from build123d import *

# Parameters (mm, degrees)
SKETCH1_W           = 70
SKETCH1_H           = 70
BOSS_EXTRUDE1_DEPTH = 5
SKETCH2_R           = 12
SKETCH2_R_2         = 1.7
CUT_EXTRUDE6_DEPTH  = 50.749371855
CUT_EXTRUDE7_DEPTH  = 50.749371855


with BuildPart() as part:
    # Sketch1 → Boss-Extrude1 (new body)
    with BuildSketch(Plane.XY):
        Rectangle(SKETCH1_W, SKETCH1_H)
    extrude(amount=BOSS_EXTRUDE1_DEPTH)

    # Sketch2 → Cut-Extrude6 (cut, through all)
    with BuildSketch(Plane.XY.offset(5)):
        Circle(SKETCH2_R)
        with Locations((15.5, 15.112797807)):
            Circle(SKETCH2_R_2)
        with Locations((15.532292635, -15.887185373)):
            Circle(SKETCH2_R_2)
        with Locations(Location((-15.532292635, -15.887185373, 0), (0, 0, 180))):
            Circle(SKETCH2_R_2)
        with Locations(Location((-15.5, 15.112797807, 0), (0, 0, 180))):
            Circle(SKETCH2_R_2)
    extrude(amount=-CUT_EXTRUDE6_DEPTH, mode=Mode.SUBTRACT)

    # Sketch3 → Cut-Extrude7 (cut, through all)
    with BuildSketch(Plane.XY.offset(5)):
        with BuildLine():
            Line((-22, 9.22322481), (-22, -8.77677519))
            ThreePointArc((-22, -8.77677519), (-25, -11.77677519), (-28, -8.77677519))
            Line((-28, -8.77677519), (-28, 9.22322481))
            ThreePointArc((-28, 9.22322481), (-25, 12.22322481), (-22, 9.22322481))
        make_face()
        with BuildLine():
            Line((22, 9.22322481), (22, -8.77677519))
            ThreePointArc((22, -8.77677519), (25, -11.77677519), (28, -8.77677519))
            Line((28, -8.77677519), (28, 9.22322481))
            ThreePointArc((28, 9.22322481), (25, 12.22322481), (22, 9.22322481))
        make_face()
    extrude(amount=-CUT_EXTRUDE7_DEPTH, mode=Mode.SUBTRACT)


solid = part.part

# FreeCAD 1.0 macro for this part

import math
import FreeCAD as App
import Part
import Sketcher

V = App.Vector


def add_polygon(sketch, points):
    """Adds a closed chain of lines whose ends are joined by coincident constraints."""
    first, n = sketch.GeometryCount, len(points)
    for a, b in zip(points, points[1:] + points[:1]):
        sketch.addGeometry(Part.LineSegment(App.Vector(*a, 0), App.Vector(*b, 0)), False)
    for i in range(n):
        sketch.addConstraint(Sketcher.Constraint("Coincident", first + i, 2, first + (i + 1) % n, 1))

doc = App.newDocument("Part")
body = doc.addObject("PartDesign::Body", "Body")

# Sketch on XY plane
sketch1 = doc.addObject("Sketcher::SketchObject", "Sketch")
body.addObject(sketch1)
sketch1.AttachmentSupport = (doc.XY_Plane, [""])
sketch1.MapMode = "FlatFace"
add_polygon(sketch1, [(-35, 35), (-35, -35), (35, -35), (35, 35)])  # lines 0-3
sketch1.addConstraint(Sketcher.Constraint("Vertical", 0))
sketch1.addConstraint(Sketcher.Constraint("Horizontal", 1))
sketch1.addConstraint(Sketcher.Constraint("Vertical", 2))
sketch1.addConstraint(Sketcher.Constraint("Horizontal", 3))
sketch1.addConstraint(Sketcher.Constraint("Symmetric", 0, 2, 2, 2, -1, 1))
sketch1.addConstraint(Sketcher.Constraint("Equal", 3, 0))
sketch1.addConstraint(Sketcher.Constraint("DistanceX", 1, 1, 1, 2, 70.0))
pad1 = doc.addObject("PartDesign::Pad", "Pad")
body.addObject(pad1)
pad1.Profile = sketch1
pad1.Length = 5

# Sketch on XY plane
sketch2 = doc.addObject("Sketcher::SketchObject", "Sketch001")
body.addObject(sketch2)
sketch2.AttachmentSupport = (doc.XY_Plane, [""])
sketch2.MapMode = "FlatFace"
sketch2.AttachmentOffset = App.Placement(V(0, 0, 5), App.Rotation())
sketch2.addGeometry(Part.Circle(V(0, 0, 0), V(0, 0, 1), 12), False)
sketch2.addGeometry(Part.Circle(V(15.5, 15.1, 0), V(0, 0, 1), 1.7), False)
sketch2.addGeometry(Part.Circle(V(15.5, -15.9, 0), V(0, 0, 1), 1.7), False)
sketch2.addGeometry(Part.Circle(V(-15.5, -15.9, 0), V(0, 0, 1), 1.7), False)
sketch2.addGeometry(Part.Circle(V(-15.5, 15.1, 0), V(0, 0, 1), 1.7), False)
sketch2.addConstraint(Sketcher.Constraint("Coincident", 0, 3, -1, 1))
sketch2.addConstraint(Sketcher.Constraint("Equal", 1, 2))
sketch2.addConstraint(Sketcher.Constraint("Equal", 2, 3))
sketch2.addConstraint(Sketcher.Constraint("Equal", 3, 4))
sketch2.addConstraint(Sketcher.Constraint("Symmetric", 2, 3, 3, 3, -2))
sketch2.addConstraint(Sketcher.Constraint("Symmetric", 1, 3, 4, 3, -2))
sketch2.addConstraint(Sketcher.Constraint("Diameter", 0, 24.0))
sketch2.addConstraint(Sketcher.Constraint("Diameter", 1, 3.4))
sketch2.addConstraint(Sketcher.Constraint("DistanceX", 4, 3, 1, 3, 31.0))
sketch2.addConstraint(Sketcher.Constraint("DistanceY", -1, 1, 1, 3, 15.112798))
sketch2.addConstraint(Sketcher.Constraint("DistanceX", -1, 1, 2, 3, 15.532293))
sketch2.addConstraint(Sketcher.Constraint("DistanceY", 2, 3, -1, 1, 15.887185))
pocket1 = doc.addObject("PartDesign::Pocket", "Pocket")
body.addObject(pocket1)
pocket1.Profile = sketch2
pocket1.Type = "ThroughAll"

# Sketch on XY plane
sketch3 = doc.addObject("Sketcher::SketchObject", "Sketch002")
body.addObject(sketch3)
sketch3.AttachmentSupport = (doc.XY_Plane, [""])
sketch3.MapMode = "FlatFace"
sketch3.AttachmentOffset = App.Placement(V(0, 0, 5), App.Rotation())
sketch3.addGeometry(Part.LineSegment(V(-22, -8.8, 0), V(-22, 9.2, 0)), False)
sketch3.addGeometry(Part.ArcOfCircle(Part.Circle(V(-25, 9.2, 0), V(0, 0, 1), 3), math.radians(0), math.radians(180)), False)
sketch3.addGeometry(Part.LineSegment(V(-28, 9.2, 0), V(-28, -8.8, 0)), False)
sketch3.addGeometry(Part.ArcOfCircle(Part.Circle(V(-25, -8.8, 0), V(0, 0, 1), 3), math.radians(180), math.radians(360)), False)
sketch3.addGeometry(Part.LineSegment(V(22, 9.2, 0), V(22, -8.8, 0)), False)
sketch3.addGeometry(Part.ArcOfCircle(Part.Circle(V(25, -8.8, 0), V(0, 0, 1), 3), math.radians(180), math.radians(360)), False)
sketch3.addGeometry(Part.LineSegment(V(28, -8.8, 0), V(28, 9.2, 0)), False)
sketch3.addGeometry(Part.ArcOfCircle(Part.Circle(V(25, 9.2, 0), V(0, 0, 1), 3), math.radians(0), math.radians(180)), False)
sketch3.addConstraint(Sketcher.Constraint("Tangent", 0, 2, 1, 1))
sketch3.addConstraint(Sketcher.Constraint("Tangent", 1, 2, 2, 1))
sketch3.addConstraint(Sketcher.Constraint("Tangent", 2, 2, 3, 1))
sketch3.addConstraint(Sketcher.Constraint("Tangent", 3, 2, 0, 1))
sketch3.addConstraint(Sketcher.Constraint("Tangent", 4, 2, 5, 1))
sketch3.addConstraint(Sketcher.Constraint("Tangent", 5, 2, 6, 1))
sketch3.addConstraint(Sketcher.Constraint("Tangent", 6, 2, 7, 1))
sketch3.addConstraint(Sketcher.Constraint("Tangent", 7, 2, 4, 1))
sketch3.addConstraint(Sketcher.Constraint("Vertical", 0))
sketch3.addConstraint(Sketcher.Constraint("Vertical", 2))
sketch3.addConstraint(Sketcher.Constraint("Vertical", 4))
sketch3.addConstraint(Sketcher.Constraint("Vertical", 6))
sketch3.addConstraint(Sketcher.Constraint("Equal", 3, 5))
sketch3.addConstraint(Sketcher.Constraint("Symmetric", 3, 3, 5, 3, -2))
sketch3.addConstraint(Sketcher.Constraint("Horizontal", 1, 3, 7, 3))
sketch3.addConstraint(Sketcher.Constraint("Radius", 1, 3.0))
sketch3.addConstraint(Sketcher.Constraint("DistanceY", 0, 1, 0, 2, 18.0))
sketch3.addConstraint(Sketcher.Constraint("DistanceX", 1, 3, -1, 1, 25.0))
sketch3.addConstraint(Sketcher.Constraint("DistanceY", -1, 1, 1, 3, 9.223225))
pocket2 = doc.addObject("PartDesign::Pocket", "Pocket001")
body.addObject(pocket2)
pocket2.Profile = sketch3
pocket2.Type = "ThroughAll"

doc.recompute()
